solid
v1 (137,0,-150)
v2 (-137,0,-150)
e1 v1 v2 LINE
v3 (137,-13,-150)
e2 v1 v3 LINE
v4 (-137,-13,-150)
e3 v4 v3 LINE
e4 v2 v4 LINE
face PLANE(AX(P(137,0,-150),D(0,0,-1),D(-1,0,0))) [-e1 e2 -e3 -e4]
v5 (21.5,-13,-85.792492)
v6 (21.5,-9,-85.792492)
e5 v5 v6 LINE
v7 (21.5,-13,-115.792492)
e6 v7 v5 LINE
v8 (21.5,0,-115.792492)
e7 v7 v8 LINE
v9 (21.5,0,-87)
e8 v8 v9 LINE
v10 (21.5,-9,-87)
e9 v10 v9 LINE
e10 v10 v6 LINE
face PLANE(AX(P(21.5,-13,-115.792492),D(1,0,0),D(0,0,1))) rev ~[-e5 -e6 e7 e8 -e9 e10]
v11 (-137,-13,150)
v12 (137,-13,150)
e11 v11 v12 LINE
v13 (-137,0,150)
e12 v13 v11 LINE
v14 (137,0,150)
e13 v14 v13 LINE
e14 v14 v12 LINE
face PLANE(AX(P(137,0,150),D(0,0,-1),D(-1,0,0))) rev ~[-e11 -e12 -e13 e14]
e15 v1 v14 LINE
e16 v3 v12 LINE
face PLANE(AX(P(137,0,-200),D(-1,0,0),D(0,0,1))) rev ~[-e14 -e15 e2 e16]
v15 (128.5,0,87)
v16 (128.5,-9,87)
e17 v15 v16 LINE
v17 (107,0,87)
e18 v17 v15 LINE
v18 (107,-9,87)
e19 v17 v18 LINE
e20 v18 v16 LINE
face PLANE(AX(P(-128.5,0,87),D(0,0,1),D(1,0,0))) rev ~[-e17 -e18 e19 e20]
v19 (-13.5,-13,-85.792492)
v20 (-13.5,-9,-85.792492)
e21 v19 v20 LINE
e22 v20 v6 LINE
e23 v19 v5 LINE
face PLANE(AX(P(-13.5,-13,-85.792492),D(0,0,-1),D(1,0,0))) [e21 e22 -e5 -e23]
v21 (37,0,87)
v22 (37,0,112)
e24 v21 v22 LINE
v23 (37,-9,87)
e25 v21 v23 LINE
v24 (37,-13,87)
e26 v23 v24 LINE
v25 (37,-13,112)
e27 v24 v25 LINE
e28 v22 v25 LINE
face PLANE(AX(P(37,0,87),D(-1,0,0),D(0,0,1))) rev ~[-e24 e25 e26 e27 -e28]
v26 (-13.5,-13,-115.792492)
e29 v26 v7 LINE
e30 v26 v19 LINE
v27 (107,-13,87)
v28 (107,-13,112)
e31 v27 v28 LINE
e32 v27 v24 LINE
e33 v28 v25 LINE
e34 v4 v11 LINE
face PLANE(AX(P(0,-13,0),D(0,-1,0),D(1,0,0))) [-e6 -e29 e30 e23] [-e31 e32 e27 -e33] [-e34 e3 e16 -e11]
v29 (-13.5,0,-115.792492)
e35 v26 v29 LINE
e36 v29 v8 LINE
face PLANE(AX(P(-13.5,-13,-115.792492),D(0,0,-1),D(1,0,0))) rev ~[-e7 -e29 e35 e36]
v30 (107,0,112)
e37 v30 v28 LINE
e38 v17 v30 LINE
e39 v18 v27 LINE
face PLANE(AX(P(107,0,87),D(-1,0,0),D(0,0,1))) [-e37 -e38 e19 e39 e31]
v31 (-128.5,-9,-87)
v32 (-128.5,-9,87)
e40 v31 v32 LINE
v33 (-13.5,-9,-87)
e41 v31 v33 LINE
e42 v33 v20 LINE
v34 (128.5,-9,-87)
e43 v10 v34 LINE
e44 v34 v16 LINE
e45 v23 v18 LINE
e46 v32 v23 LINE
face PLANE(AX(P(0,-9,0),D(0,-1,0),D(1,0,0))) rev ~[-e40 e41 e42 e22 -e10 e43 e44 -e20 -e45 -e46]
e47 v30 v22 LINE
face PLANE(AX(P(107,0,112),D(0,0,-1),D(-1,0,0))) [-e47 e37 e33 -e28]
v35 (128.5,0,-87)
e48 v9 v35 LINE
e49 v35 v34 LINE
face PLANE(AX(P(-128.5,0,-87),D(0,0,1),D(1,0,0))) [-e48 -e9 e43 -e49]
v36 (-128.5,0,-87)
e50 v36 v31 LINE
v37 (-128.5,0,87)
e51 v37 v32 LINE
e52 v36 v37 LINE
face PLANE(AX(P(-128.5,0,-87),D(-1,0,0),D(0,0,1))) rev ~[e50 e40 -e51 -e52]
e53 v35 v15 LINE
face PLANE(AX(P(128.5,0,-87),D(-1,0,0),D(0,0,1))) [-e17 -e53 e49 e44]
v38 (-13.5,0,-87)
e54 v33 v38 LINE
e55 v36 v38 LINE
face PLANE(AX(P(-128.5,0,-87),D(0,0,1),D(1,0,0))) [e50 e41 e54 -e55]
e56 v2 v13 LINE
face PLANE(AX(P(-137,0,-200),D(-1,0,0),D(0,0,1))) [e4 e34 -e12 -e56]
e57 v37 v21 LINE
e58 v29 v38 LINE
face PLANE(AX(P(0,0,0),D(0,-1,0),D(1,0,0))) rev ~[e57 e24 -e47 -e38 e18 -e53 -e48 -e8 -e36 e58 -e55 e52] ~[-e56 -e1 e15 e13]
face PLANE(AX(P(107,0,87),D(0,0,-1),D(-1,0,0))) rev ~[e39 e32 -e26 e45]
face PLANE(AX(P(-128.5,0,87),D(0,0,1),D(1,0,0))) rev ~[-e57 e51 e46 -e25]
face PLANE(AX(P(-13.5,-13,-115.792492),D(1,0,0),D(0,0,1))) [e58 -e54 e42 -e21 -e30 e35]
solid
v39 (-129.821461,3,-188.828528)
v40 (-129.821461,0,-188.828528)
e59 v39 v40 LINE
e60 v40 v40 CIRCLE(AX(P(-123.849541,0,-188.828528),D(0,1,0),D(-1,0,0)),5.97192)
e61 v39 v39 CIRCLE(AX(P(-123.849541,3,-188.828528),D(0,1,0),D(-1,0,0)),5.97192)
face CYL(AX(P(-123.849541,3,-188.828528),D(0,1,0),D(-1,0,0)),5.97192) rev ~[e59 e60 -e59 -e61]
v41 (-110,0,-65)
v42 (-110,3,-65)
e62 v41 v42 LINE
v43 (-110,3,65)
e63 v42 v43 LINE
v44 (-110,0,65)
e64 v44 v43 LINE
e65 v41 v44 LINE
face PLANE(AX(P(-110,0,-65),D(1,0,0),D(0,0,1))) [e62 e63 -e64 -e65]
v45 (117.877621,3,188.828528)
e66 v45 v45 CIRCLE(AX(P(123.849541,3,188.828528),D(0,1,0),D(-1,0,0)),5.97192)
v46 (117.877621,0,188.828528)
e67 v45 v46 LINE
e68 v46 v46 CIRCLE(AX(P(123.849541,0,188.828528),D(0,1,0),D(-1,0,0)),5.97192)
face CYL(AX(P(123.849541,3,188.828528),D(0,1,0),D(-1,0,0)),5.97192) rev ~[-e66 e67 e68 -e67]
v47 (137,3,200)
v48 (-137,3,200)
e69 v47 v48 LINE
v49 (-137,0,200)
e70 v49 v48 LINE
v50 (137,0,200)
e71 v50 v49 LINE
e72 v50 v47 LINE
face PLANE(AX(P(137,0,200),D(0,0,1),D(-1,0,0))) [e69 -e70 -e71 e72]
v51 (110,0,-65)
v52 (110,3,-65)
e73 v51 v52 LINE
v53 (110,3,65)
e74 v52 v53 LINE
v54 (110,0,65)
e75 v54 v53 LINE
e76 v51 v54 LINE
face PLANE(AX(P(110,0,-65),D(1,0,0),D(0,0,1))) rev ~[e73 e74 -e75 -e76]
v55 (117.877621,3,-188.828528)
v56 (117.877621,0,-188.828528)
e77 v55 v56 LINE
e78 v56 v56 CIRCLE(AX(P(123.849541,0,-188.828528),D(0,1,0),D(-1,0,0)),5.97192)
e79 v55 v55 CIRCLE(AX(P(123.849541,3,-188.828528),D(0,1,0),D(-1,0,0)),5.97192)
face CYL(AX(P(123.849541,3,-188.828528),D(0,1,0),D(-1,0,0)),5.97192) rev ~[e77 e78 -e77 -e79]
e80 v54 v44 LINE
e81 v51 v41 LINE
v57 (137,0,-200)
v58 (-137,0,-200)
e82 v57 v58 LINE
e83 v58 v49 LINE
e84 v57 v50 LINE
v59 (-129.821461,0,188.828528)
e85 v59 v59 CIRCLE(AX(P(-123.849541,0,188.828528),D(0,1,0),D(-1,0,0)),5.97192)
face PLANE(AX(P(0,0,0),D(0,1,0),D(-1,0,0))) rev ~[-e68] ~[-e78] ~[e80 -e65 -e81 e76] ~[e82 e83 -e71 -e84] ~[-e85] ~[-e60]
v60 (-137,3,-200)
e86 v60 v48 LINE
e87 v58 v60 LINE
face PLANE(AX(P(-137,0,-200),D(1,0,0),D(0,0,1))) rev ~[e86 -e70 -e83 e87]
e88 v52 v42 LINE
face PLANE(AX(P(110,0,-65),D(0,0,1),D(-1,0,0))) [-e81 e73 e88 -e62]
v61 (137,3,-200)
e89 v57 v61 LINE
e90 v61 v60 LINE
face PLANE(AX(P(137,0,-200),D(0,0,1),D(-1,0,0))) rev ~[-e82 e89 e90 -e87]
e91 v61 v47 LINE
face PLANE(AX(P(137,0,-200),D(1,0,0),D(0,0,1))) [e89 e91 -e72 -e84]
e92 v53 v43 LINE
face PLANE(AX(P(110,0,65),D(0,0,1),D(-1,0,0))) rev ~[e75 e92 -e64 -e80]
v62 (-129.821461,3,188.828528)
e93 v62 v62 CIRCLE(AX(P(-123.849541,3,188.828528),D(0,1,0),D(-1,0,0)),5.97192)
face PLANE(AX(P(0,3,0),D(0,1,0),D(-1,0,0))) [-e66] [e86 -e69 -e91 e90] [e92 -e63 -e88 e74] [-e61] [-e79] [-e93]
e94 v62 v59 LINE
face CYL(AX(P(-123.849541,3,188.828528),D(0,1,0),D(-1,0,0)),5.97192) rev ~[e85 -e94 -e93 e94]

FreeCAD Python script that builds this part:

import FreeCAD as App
import Part
import Sketcher
from FreeCAD import Vector
Q = App.Units.Quantity


def add_polygon(sketch, points):
    """Adds a closed chain of lines whose ends are joined by coincident constraints."""
    first, n = sketch.GeometryCount, len(points)
    for a, b in zip(points, points[1:] + points[:1]):
        sketch.addGeometry(Part.LineSegment(App.Vector(*a, 0), App.Vector(*b, 0)), False)
    for i in range(n):
        sketch.addConstraint(Sketcher.Constraint("Coincident", first + i, 2, first + (i + 1) % n, 1))

doc = App.newDocument("Part")
body = doc.addObject("PartDesign::Body", "Body")

# Sketch on XZ plane
sketch1 = body.newObject("Sketcher::SketchObject", "Sketch")
sketch1.AttachmentSupport = (doc.getObject("XZ_Plane"), [""])
sketch1.MapMode = "FlatFace"
add_polygon(sketch1, [(-137, 200), (-137, -200), (137, -200), (137, 200)])  # lines 0-3
sketch1.addConstraint(Sketcher.Constraint("Vertical", 0))
sketch1.addConstraint(Sketcher.Constraint("Horizontal", 1))
sketch1.addConstraint(Sketcher.Constraint("Vertical", 2))
sketch1.addConstraint(Sketcher.Constraint("Horizontal", 3))
sketch1.addConstraint(Sketcher.Constraint("Symmetric", 0, 2, 2, 2, -1, 1))
sketch1.addConstraint(Sketcher.Constraint("DistanceX", 1, 1, 1, 2, Q("274 mm")))
sketch1.addConstraint(Sketcher.Constraint("DistanceY", 0, 2, 0, 1, Q("400 mm")))
pad1 = body.newObject("PartDesign::Pad", "Pad")
pad1.Profile = sketch1
pad1.Length = 13

# Sketch on XZ plane
sketch2 = body.newObject("Sketcher::SketchObject", "Sketch001")
sketch2.AttachmentSupport = (doc.getObject("XZ_Plane"), [""])
sketch2.MapMode = "FlatFace"
add_polygon(sketch2, [(-128, 87), (-128, -87), (128, -87), (128, 87)])  # lines 0-3
sketch2.addConstraint(Sketcher.Constraint("Vertical", 0))
sketch2.addConstraint(Sketcher.Constraint("Horizontal", 1))
sketch2.addConstraint(Sketcher.Constraint("Vertical", 2))
sketch2.addConstraint(Sketcher.Constraint("Horizontal", 3))
sketch2.addConstraint(Sketcher.Constraint("Symmetric", 0, 2, 2, 2, -1, 1))
sketch2.addConstraint(Sketcher.Constraint("DistanceX", 1, 1, 1, 2, Q("257 mm")))
sketch2.addConstraint(Sketcher.Constraint("DistanceY", 0, 2, 0, 1, Q("174 mm")))
pocket1 = body.newObject("PartDesign::Pocket", "Pocket")
pocket1.Profile = sketch2
pocket1.Length = 9
pocket1.Reversed = True

# Sketch on XZ plane
sketch3 = body.newObject("Sketcher::SketchObject", "Sketch002")
sketch3.AttachmentSupport = (doc.getObject("XZ_Plane"), [""])
sketch3.MapMode = "FlatFace"
sketch3.AttachmentOffset = App.Placement(Vector(0, 0, 13), App.Rotation())
add_polygon(sketch3, [(-14, -86), (-14, -116), (22, -116), (22, -86)])  # lines 0-3
sketch3.addConstraint(Sketcher.Constraint("Vertical", 0))
sketch3.addConstraint(Sketcher.Constraint("Horizontal", 1))
sketch3.addConstraint(Sketcher.Constraint("Vertical", 2))
sketch3.addConstraint(Sketcher.Constraint("Horizontal", 3))
sketch3.addConstraint(Sketcher.Constraint("DistanceX", 1, 1, 1, 2, Q("35 mm")))
sketch3.addConstraint(Sketcher.Constraint("DistanceY", 0, 2, 0, 1, Q("30 mm")))
sketch3.addConstraint(Sketcher.Constraint("DistanceX", 0, 2, -1, 1, Q("13.5 mm")))
sketch3.addConstraint(Sketcher.Constraint("DistanceY", 0, 2, -1, 1, Q("115.792492 mm")))
pocket2 = body.newObject("PartDesign::Pocket", "Pocket001")
pocket2.Profile = sketch3
pocket2.Length = 13

# Sketch on XZ plane
sketch4 = body.newObject("Sketcher::SketchObject", "Sketch003")
sketch4.AttachmentSupport = (doc.getObject("XZ_Plane"), [""])
sketch4.MapMode = "FlatFace"
add_polygon(sketch4, [(107, 112), (107, 87), (37, 87), (37, 112)])  # lines 0-3
sketch4.addConstraint(Sketcher.Constraint("Vertical", 0))
sketch4.addConstraint(Sketcher.Constraint("Horizontal", 1))
sketch4.addConstraint(Sketcher.Constraint("Vertical", 2))
sketch4.addConstraint(Sketcher.Constraint("Horizontal", 3))
sketch4.addConstraint(Sketcher.Constraint("DistanceX", 1, 2, 1, 1, Q("70 mm")))
sketch4.addConstraint(Sketcher.Constraint("DistanceY", 0, 2, 0, 1, Q("25 mm")))
sketch4.addConstraint(Sketcher.Constraint("DistanceX", -1, 1, 0, 2, Q("107 mm")))
sketch4.addConstraint(Sketcher.Constraint("DistanceY", -1, 1, 0, 2, Q("87 mm")))
pocket3 = body.newObject("PartDesign::Pocket", "Pocket002")
pocket3.Profile = sketch4
pocket3.Length = 13
pocket3.Reversed = True
body2 = doc.addObject("PartDesign::Body", "Body001")

# Sketch on XZ plane
sketch5 = body2.newObject("Sketcher::SketchObject", "Sketch004")
sketch5.AttachmentSupport = (doc.getObject("XZ_Plane001"), [""])
sketch5.MapMode = "FlatFace"
add_polygon(sketch5, [(137, 200), (137, -200), (-137, -200), (-137, 200)])  # lines 0-3
add_polygon(sketch5, [(-110, -65), (110, -65), (110, 65), (-110, 65)])  # lines 4-7
sketch5.addConstraint(Sketcher.Constraint("Vertical", 0))
sketch5.addConstraint(Sketcher.Constraint("Horizontal", 1))
sketch5.addConstraint(Sketcher.Constraint("Vertical", 2))
sketch5.addConstraint(Sketcher.Constraint("Horizontal", 3))
sketch5.addConstraint(Sketcher.Constraint("Horizontal", 4))
sketch5.addConstraint(Sketcher.Constraint("Vertical", 5))
sketch5.addConstraint(Sketcher.Constraint("Horizontal", 6))
sketch5.addConstraint(Sketcher.Constraint("Vertical", 7))
sketch5.addConstraint(Sketcher.Constraint("Symmetric", 0, 2, 2, 2, -1, 1))
sketch5.addConstraint(Sketcher.Constraint("Symmetric", 4, 2, 6, 2, -1, 1))
sketch5.addConstraint(Sketcher.Constraint("DistanceX", 1, 2, 1, 1, Q("274 mm")))
sketch5.addConstraint(Sketcher.Constraint("DistanceX", 4, 1, 4, 2, Q("220 mm")))
sketch5.addConstraint(Sketcher.Constraint("DistanceY", 0, 2, 0, 1, Q("400 mm")))
sketch5.addConstraint(Sketcher.Constraint("DistanceY", 5, 1, 5, 2, Q("130 mm")))
pad2 = body2.newObject("PartDesign::Pad", "Pad001")
pad2.Profile = sketch5
pad2.Length = 3
pad2.Reversed = True
body3 = doc.addObject("PartDesign::Body", "Body002")

# Sketch on XZ plane
sketch6 = body3.newObject("Sketcher::SketchObject", "Sketch005")
sketch6.AttachmentSupport = (doc.getObject("XZ_Plane002"), [""])
sketch6.MapMode = "FlatFace"
sketch6.AttachmentOffset = App.Placement(Vector(0, 0, 9), App.Rotation())
add_polygon(sketch6, [(137, 106), (137, -102), (-136, -102), (-136, 106)])  # lines 0-3
sketch6.addConstraint(Sketcher.Constraint("Vertical", 0))
sketch6.addConstraint(Sketcher.Constraint("Horizontal", 1))
sketch6.addConstraint(Sketcher.Constraint("Vertical", 2))
sketch6.addConstraint(Sketcher.Constraint("Horizontal", 3))
sketch6.addConstraint(Sketcher.Constraint("DistanceX", 1, 2, 1, 1, Q("272.697836 mm")))
sketch6.addConstraint(Sketcher.Constraint("DistanceY", 0, 2, 0, 1, Q("207.733818 mm")))
sketch6.addConstraint(Sketcher.Constraint("DistanceX", -1, 1, 0, 2, Q("136.726618 mm")))
sketch6.addConstraint(Sketcher.Constraint("DistanceY", 0, 2, -1, 1, Q("101.978414 mm")))
pad3 = body3.newObject("PartDesign::Pad", "Pad002")
pad3.Profile = sketch6
pad3.Length = 3
pad3.Reversed = True
body4 = doc.addObject("PartDesign::Body", "Body003")

# Sketch on XZ plane
sketch7 = body4.newObject("Sketcher::SketchObject", "Sketch006")
sketch7.AttachmentSupport = (doc.getObject("XZ_Plane003"), [""])
sketch7.MapMode = "FlatFace"
sketch7.AttachmentOffset = App.Placement(Vector(0, 0, -3), App.Rotation())
sketch7.addGeometry(Part.Circle(Vector(124, 189, 0), Vector(0, 0, 1), 6), False)
sketch7.addConstraint(Sketcher.Constraint("Diameter", 0, Q("11.94384 mm")))
sketch7.addConstraint(Sketcher.Constraint("DistanceX", -1, 1, 0, 3, Q("123.849541 mm")))
sketch7.addConstraint(Sketcher.Constraint("DistanceY", -1, 1, 0, 3, Q("188.828528 mm")))
pad4 = body4.newObject("PartDesign::Pad", "Pad003")
pad4.Profile = sketch7
pad4.Length = 16.001
doc.recompute()

body5 = doc.addObject("PartDesign::Body", "Body004")
body5.BaseFeature = body4
boolean = body.newObject("PartDesign::Boolean", "Boolean")
boolean.Type = "Cut"
boolean.addObjects([body5])
doc.recompute()

boolean2 = body2.newObject("PartDesign::Boolean", "Boolean001")
boolean2.Type = "Cut"
boolean2.addObjects([body4])
body6 = doc.addObject("PartDesign::Body", "Body005")

# Sketch on XZ plane
sketch8 = body6.newObject("Sketcher::SketchObject", "Sketch007")
sketch8.AttachmentSupport = (doc.getObject("XZ_Plane005"), [""])
sketch8.MapMode = "FlatFace"
sketch8.AttachmentOffset = App.Placement(Vector(0, 0, -3), App.Rotation())
sketch8.addGeometry(Part.Circle(Vector(-124, 189, 0), Vector(0, 0, 1), 6), False)
sketch8.addConstraint(Sketcher.Constraint("Diameter", 0, Q("11.94384 mm")))
sketch8.addConstraint(Sketcher.Constraint("DistanceX", 0, 3, -1, 1, Q("123.849541 mm")))
sketch8.addConstraint(Sketcher.Constraint("DistanceY", -1, 1, 0, 3, Q("188.828528 mm")))
pad5 = body6.newObject("PartDesign::Pad", "Pad004")
pad5.Profile = sketch8
pad5.Length = 25
doc.recompute()

body7 = doc.addObject("PartDesign::Body", "Body006")
body7.BaseFeature = body6
boolean3 = body.newObject("PartDesign::Boolean", "Boolean002")
boolean3.Type = "Cut"
boolean3.addObjects([body7])
doc.recompute()

boolean4 = body2.newObject("PartDesign::Boolean", "Boolean003")
boolean4.Type = "Cut"
boolean4.addObjects([body6])
body8 = doc.addObject("PartDesign::Body", "Body007")

# Sketch on XZ plane
sketch9 = body8.newObject("Sketcher::SketchObject", "Sketch008")
sketch9.AttachmentSupport = (doc.getObject("XZ_Plane007"), [""])
sketch9.MapMode = "FlatFace"
sketch9.AttachmentOffset = App.Placement(Vector(0, 0, -3), App.Rotation())
sketch9.addGeometry(Part.Circle(Vector(124, -189, 0), Vector(0, 0, 1), 6), False)
sketch9.addConstraint(Sketcher.Constraint("Diameter", 0, Q("11.94384 mm")))
sketch9.addConstraint(Sketcher.Constraint("DistanceX", -1, 1, 0, 3, Q("123.849541 mm")))
sketch9.addConstraint(Sketcher.Constraint("DistanceY", 0, 3, -1, 1, Q("188.828528 mm")))
pad6 = body8.newObject("PartDesign::Pad", "Pad005")
pad6.Profile = sketch9
pad6.Length = 25
doc.recompute()

body9 = doc.addObject("PartDesign::Body", "Body008")
body9.BaseFeature = body8
boolean5 = body.newObject("PartDesign::Boolean", "Boolean004")
boolean5.Type = "Cut"
boolean5.addObjects([body9])
doc.recompute()

boolean6 = body2.newObject("PartDesign::Boolean", "Boolean005")
boolean6.Type = "Cut"
boolean6.addObjects([body8])
body10 = doc.addObject("PartDesign::Body", "Body009")

# Sketch on XZ plane
sketch10 = body10.newObject("Sketcher::SketchObject", "Sketch009")
sketch10.AttachmentSupport = (doc.getObject("XZ_Plane009"), [""])
sketch10.MapMode = "FlatFace"
sketch10.AttachmentOffset = App.Placement(Vector(0, 0, -3), App.Rotation())
sketch10.addGeometry(Part.Circle(Vector(-124, -189, 0), Vector(0, 0, 1), 6), False)
sketch10.addConstraint(Sketcher.Constraint("Diameter", 0, Q("11.94384 mm")))
sketch10.addConstraint(Sketcher.Constraint("DistanceX", 0, 3, -1, 1, Q("123.849541 mm")))
sketch10.addConstraint(Sketcher.Constraint("DistanceY", 0, 3, -1, 1, Q("188.828528 mm")))
pad7 = body10.newObject("PartDesign::Pad", "Pad006")
pad7.Profile = sketch10
pad7.Length = 25
doc.recompute()

body11 = doc.addObject("PartDesign::Body", "Body010")
body11.BaseFeature = body10
boolean7 = body.newObject("PartDesign::Boolean", "Boolean006")
boolean7.Type = "Cut"
boolean7.addObjects([body11])
doc.recompute()

# Sketch on XZ plane
sketch11 = body.newObject("Sketcher::SketchObject", "Sketch010")
sketch11.AttachmentSupport = (doc.getObject("XZ_Plane"), [""])
sketch11.MapMode = "FlatFace"
add_polygon(sketch11, [(137, 200), (137, 150), (-137, 150), (-137, 200)])  # lines 0-3
add_polygon(sketch11, [(137, -150), (137, -200), (-137, -200), (-137, -150)])  # lines 4-7
sketch11.addConstraint(Sketcher.Constraint("Vertical", 0))
sketch11.addConstraint(Sketcher.Constraint("Horizontal", 1))
sketch11.addConstraint(Sketcher.Constraint("Vertical", 2))
sketch11.addConstraint(Sketcher.Constraint("Horizontal", 3))
sketch11.addConstraint(Sketcher.Constraint("Vertical", 4))
sketch11.addConstraint(Sketcher.Constraint("Horizontal", 5))
sketch11.addConstraint(Sketcher.Constraint("Vertical", 6))
sketch11.addConstraint(Sketcher.Constraint("Horizontal", 7))
sketch11.addConstraint(Sketcher.Constraint("Symmetric", 2, 2, 4, 2, -1, 1))
sketch11.addConstraint(Sketcher.Constraint("Symmetric", 0, 2, 6, 2, -1, 1))
sketch11.addConstraint(Sketcher.Constraint("Vertical", 3, 2, 4, 2))
sketch11.addConstraint(Sketcher.Constraint("DistanceX", 1, 2, 1, 1, Q("274 mm")))
sketch11.addConstraint(Sketcher.Constraint("DistanceY", 0, 2, 0, 1, Q("50 mm")))
sketch11.addConstraint(Sketcher.Constraint("DistanceY", -1, 1, 0, 2, Q("150 mm")))
pocket4 = body.newObject("PartDesign::Pocket", "Pocket003")
pocket4.Profile = sketch11
pocket4.Type = "ThroughAll"
pocket4.Reversed = True
doc.recompute()

boolean8 = body2.newObject("PartDesign::Boolean", "Boolean007")
boolean8.Type = "Cut"
boolean8.addObjects([body10])
body3.Visibility = False

doc.recompute()
